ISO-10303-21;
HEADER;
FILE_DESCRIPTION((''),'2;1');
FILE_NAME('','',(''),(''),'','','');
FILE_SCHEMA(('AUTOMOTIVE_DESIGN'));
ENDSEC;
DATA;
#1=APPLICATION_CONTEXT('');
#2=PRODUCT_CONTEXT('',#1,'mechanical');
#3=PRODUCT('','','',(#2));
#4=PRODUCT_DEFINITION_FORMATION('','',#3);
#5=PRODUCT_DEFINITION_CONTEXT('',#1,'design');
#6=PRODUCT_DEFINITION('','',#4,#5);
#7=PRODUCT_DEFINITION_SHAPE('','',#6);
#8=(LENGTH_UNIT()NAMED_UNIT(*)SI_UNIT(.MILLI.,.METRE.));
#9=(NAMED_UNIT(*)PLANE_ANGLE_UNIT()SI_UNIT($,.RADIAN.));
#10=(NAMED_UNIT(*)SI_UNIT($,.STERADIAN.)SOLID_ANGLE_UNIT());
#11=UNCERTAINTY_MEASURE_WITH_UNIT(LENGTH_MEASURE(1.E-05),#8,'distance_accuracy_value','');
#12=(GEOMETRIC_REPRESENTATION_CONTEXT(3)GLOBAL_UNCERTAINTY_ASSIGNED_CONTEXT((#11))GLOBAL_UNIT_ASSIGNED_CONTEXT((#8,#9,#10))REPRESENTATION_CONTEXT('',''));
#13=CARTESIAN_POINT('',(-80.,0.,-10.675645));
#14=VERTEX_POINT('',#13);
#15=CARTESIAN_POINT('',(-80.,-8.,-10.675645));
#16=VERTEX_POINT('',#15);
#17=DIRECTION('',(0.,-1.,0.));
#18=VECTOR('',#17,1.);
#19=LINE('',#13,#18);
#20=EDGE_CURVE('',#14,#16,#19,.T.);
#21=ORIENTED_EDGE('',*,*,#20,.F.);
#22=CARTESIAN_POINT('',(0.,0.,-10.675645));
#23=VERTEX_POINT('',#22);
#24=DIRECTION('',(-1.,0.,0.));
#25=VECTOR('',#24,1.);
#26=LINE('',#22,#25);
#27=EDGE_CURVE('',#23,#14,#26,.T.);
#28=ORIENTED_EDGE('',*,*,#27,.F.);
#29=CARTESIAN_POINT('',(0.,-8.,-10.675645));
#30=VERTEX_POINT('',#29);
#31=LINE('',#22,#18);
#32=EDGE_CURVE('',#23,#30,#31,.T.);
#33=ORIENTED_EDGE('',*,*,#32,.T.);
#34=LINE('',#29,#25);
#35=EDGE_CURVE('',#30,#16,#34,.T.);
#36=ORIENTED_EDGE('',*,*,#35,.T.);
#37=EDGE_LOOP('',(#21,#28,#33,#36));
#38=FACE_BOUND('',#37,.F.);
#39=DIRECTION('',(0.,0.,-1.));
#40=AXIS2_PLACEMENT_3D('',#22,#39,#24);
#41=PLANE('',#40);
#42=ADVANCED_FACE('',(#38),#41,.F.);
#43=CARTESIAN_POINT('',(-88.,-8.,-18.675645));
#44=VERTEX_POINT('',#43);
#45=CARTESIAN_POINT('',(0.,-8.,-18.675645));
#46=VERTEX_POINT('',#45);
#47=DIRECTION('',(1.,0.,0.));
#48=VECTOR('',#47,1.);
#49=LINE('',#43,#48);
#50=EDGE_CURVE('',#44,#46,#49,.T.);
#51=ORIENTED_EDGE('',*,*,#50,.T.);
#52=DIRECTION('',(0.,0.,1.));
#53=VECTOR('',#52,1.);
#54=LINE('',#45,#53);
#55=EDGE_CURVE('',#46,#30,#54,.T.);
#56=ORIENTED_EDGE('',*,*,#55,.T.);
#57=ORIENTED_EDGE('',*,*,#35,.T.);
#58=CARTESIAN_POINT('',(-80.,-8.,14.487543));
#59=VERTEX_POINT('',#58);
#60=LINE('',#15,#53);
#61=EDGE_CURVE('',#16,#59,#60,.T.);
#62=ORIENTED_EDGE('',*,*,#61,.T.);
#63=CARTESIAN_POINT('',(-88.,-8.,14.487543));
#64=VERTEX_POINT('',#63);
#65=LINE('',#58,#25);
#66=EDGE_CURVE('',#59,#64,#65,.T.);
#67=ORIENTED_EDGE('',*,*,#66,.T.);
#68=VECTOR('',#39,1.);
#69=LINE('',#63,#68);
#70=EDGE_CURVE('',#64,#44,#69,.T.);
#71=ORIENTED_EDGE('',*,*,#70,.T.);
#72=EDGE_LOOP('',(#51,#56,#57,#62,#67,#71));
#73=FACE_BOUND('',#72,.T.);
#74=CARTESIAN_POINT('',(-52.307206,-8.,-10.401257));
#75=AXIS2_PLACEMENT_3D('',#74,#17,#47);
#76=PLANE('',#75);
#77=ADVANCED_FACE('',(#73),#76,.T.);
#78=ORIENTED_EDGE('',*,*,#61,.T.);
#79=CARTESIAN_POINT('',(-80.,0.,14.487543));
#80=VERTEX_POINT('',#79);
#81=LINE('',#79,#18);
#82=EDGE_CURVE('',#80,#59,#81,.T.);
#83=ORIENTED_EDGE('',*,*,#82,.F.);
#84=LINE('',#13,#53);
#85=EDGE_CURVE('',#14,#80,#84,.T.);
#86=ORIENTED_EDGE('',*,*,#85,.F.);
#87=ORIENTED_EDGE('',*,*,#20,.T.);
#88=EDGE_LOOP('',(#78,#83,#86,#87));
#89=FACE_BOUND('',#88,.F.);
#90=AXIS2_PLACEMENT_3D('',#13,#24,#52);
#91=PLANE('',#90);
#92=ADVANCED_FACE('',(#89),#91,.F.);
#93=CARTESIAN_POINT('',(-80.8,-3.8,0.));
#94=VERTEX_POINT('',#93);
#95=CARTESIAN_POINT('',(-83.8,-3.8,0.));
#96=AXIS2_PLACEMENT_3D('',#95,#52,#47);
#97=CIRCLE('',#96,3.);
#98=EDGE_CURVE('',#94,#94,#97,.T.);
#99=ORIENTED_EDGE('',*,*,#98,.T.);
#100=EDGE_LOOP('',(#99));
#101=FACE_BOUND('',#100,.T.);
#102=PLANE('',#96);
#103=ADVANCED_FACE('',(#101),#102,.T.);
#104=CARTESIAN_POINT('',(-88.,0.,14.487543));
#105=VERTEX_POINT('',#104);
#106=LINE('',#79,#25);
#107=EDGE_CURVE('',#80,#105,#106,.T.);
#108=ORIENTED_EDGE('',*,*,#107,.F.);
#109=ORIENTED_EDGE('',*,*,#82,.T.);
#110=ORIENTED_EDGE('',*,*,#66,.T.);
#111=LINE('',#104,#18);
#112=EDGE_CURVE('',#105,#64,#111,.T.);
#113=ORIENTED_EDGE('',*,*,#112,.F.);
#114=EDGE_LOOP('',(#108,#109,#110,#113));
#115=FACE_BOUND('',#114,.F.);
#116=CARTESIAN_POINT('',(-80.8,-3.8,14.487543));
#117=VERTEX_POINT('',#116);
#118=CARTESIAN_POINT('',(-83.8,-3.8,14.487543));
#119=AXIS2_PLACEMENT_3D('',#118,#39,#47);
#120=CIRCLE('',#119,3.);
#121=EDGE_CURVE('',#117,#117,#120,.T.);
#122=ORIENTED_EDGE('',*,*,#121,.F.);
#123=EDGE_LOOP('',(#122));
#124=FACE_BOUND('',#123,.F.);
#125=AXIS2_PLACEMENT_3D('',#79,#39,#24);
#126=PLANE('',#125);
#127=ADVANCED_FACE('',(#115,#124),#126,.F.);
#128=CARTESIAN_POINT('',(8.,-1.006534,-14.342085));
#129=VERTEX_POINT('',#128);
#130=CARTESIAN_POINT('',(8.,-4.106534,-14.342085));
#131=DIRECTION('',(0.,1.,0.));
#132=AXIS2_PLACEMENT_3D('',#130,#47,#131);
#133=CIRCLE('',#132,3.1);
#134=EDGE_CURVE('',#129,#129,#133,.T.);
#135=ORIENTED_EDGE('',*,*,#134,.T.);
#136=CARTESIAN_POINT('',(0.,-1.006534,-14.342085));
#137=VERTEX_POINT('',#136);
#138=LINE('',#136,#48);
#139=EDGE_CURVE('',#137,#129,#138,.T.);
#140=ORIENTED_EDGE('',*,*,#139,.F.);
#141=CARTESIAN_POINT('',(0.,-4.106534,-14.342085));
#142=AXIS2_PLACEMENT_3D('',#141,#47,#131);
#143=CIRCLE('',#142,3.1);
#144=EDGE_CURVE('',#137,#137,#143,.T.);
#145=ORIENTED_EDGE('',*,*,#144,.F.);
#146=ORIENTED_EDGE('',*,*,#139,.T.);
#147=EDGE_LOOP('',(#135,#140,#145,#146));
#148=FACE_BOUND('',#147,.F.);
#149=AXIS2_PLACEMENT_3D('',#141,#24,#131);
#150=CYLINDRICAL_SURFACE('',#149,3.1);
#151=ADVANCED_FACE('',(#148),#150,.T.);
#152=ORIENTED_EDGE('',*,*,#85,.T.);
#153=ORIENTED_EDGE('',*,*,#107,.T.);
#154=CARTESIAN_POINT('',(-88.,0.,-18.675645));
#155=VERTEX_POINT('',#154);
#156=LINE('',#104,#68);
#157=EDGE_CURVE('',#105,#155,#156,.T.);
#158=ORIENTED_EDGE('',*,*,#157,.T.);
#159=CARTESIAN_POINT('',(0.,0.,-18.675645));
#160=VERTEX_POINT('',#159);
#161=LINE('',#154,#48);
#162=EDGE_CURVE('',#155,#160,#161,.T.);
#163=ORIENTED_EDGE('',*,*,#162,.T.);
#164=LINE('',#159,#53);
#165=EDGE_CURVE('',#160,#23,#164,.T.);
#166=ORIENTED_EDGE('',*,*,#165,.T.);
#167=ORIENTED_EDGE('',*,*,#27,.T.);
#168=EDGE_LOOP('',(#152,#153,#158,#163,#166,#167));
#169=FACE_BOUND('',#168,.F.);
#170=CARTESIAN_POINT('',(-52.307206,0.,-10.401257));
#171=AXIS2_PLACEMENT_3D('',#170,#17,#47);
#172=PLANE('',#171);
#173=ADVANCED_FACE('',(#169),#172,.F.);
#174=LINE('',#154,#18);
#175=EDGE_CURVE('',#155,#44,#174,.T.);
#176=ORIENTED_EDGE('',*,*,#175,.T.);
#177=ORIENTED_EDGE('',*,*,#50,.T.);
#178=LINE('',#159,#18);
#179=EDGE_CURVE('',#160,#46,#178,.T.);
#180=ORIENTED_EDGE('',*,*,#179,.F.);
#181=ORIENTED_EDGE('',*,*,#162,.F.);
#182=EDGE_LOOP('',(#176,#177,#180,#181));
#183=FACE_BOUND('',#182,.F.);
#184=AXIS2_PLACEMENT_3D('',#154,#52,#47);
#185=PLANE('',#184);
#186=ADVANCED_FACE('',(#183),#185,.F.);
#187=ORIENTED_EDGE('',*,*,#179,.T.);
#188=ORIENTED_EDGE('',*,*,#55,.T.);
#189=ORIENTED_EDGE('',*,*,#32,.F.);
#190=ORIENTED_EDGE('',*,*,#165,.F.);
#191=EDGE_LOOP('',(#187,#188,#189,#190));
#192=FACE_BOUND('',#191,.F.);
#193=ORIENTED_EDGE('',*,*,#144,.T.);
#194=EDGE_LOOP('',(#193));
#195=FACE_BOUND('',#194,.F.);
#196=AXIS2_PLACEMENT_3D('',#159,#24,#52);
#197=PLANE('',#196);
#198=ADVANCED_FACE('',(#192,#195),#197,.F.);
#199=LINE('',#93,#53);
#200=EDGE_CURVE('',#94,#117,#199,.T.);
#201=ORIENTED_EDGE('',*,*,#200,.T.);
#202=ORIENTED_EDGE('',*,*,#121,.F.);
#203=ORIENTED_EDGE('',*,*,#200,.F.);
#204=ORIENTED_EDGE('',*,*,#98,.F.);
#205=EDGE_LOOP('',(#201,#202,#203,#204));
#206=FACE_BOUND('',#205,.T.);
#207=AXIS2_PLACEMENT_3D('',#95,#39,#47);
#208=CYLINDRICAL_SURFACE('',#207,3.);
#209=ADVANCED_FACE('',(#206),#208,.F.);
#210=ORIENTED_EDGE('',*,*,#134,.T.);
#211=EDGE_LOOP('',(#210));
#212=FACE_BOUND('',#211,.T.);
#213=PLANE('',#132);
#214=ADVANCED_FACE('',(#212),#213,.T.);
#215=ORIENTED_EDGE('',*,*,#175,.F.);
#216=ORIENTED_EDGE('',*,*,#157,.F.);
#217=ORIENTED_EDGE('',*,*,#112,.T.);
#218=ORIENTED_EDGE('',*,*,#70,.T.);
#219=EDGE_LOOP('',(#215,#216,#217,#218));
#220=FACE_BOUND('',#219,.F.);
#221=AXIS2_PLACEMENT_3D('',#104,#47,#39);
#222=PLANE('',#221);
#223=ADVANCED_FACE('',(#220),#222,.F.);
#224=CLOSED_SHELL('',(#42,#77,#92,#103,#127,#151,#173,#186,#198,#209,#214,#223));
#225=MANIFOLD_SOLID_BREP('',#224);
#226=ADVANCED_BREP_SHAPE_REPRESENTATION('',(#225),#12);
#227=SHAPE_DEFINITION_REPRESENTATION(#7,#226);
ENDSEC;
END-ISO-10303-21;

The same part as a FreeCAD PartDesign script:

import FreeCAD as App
import Part
import Sketcher


def add_polygon(sketch, points):
    """Adds a closed chain of lines whose ends are joined by coincident constraints."""
    first, n = sketch.GeometryCount, len(points)
    for a, b in zip(points, points[1:] + points[:1]):
        sketch.addGeometry(Part.LineSegment(App.Vector(*a, 0), App.Vector(*b, 0)), False)
    for i in range(n):
        sketch.addConstraint(Sketcher.Constraint("Coincident", first + i, 2, first + (i + 1) % n, 1))

doc = App.newDocument("Part")
body = doc.addObject("PartDesign::Body", "Body")

sketch1 = doc.addObject("Sketcher::SketchObject", "Sketch")
body.addObject(sketch1)
sketch1.AttachmentSupport = (doc.XZ_Plane, [""])
sketch1.MapMode = "FlatFace"
add_polygon(sketch1, [(-80, -11), (-80, 14), (-88, 14), (-88, -19), (0, -19), (0, -11)])
sketch1.addConstraint([
    Sketcher.Constraint("Vertical", 0),
    Sketcher.Constraint("Horizontal", 1),
    Sketcher.Constraint("Vertical", 2),
    Sketcher.Constraint("Horizontal", 3),
    Sketcher.Constraint("Vertical", 4),
    Sketcher.Constraint("Horizontal", 5),
    Sketcher.Constraint("PointOnObject", 3, 2, -2),
    Sketcher.Constraint("Equal", 1, 4),
    Sketcher.Constraint("DistanceX", 1, 2, 1, 1, 8.0),
    Sketcher.Constraint("DistanceX", 3, 1, 3, 2, 88.0),
    Sketcher.Constraint("DistanceY", 0, 1, 0, 2, 25.163188),
    Sketcher.Constraint("DistanceY", -1, 1, 0, 2, 14.487543),
])
pad1 = doc.addObject("PartDesign::Pad", "Pad")
body.addObject(pad1)
pad1.Profile = sketch1
pad1.Length = 8

sketch2 = doc.addObject("Sketcher::SketchObject", "Sketch001")
body.addObject(sketch2)
sketch2.AttachmentSupport = (doc.YZ_Plane, [""])
sketch2.MapMode = "FlatFace"
sketch2.addGeometry(Part.Circle(App.Vector(-4.1, -14.3, 0), App.Vector(0, 0, 1), 3.1), False)
sketch2.addConstraint([
    Sketcher.Constraint("Diameter", 0, 6.2),
    Sketcher.Constraint("DistanceX", 0, 3, -1, 1, 4.106534),
    Sketcher.Constraint("DistanceY", 0, 3, -1, 1, 14.342085),
])
pad2 = doc.addObject("PartDesign::Pad", "Pad001")
body.addObject(pad2)
pad2.Profile = sketch2
pad2.Length = 8

sketch3 = doc.addObject("Sketcher::SketchObject", "Sketch002")
body.addObject(sketch3)
sketch3.AttachmentSupport = (doc.XY_Plane, [""])
sketch3.MapMode = "FlatFace"
sketch3.addGeometry(Part.Circle(App.Vector(-83.8, -3.8, 0), App.Vector(0, 0, 1), 3), False)
sketch3.addConstraint([
    Sketcher.Constraint("Diameter", 0, 6.0),
    Sketcher.Constraint("DistanceX", 0, 3, -1, 1, 83.8),
    Sketcher.Constraint("DistanceY", 0, 3, -1, 1, 3.8),
])
pocket1 = doc.addObject("PartDesign::Pocket", "Pocket")
body.addObject(pocket1)
pocket1.Profile = sketch3
pocket1.Length = 16
pocket1.Reversed = True

doc.recompute()
